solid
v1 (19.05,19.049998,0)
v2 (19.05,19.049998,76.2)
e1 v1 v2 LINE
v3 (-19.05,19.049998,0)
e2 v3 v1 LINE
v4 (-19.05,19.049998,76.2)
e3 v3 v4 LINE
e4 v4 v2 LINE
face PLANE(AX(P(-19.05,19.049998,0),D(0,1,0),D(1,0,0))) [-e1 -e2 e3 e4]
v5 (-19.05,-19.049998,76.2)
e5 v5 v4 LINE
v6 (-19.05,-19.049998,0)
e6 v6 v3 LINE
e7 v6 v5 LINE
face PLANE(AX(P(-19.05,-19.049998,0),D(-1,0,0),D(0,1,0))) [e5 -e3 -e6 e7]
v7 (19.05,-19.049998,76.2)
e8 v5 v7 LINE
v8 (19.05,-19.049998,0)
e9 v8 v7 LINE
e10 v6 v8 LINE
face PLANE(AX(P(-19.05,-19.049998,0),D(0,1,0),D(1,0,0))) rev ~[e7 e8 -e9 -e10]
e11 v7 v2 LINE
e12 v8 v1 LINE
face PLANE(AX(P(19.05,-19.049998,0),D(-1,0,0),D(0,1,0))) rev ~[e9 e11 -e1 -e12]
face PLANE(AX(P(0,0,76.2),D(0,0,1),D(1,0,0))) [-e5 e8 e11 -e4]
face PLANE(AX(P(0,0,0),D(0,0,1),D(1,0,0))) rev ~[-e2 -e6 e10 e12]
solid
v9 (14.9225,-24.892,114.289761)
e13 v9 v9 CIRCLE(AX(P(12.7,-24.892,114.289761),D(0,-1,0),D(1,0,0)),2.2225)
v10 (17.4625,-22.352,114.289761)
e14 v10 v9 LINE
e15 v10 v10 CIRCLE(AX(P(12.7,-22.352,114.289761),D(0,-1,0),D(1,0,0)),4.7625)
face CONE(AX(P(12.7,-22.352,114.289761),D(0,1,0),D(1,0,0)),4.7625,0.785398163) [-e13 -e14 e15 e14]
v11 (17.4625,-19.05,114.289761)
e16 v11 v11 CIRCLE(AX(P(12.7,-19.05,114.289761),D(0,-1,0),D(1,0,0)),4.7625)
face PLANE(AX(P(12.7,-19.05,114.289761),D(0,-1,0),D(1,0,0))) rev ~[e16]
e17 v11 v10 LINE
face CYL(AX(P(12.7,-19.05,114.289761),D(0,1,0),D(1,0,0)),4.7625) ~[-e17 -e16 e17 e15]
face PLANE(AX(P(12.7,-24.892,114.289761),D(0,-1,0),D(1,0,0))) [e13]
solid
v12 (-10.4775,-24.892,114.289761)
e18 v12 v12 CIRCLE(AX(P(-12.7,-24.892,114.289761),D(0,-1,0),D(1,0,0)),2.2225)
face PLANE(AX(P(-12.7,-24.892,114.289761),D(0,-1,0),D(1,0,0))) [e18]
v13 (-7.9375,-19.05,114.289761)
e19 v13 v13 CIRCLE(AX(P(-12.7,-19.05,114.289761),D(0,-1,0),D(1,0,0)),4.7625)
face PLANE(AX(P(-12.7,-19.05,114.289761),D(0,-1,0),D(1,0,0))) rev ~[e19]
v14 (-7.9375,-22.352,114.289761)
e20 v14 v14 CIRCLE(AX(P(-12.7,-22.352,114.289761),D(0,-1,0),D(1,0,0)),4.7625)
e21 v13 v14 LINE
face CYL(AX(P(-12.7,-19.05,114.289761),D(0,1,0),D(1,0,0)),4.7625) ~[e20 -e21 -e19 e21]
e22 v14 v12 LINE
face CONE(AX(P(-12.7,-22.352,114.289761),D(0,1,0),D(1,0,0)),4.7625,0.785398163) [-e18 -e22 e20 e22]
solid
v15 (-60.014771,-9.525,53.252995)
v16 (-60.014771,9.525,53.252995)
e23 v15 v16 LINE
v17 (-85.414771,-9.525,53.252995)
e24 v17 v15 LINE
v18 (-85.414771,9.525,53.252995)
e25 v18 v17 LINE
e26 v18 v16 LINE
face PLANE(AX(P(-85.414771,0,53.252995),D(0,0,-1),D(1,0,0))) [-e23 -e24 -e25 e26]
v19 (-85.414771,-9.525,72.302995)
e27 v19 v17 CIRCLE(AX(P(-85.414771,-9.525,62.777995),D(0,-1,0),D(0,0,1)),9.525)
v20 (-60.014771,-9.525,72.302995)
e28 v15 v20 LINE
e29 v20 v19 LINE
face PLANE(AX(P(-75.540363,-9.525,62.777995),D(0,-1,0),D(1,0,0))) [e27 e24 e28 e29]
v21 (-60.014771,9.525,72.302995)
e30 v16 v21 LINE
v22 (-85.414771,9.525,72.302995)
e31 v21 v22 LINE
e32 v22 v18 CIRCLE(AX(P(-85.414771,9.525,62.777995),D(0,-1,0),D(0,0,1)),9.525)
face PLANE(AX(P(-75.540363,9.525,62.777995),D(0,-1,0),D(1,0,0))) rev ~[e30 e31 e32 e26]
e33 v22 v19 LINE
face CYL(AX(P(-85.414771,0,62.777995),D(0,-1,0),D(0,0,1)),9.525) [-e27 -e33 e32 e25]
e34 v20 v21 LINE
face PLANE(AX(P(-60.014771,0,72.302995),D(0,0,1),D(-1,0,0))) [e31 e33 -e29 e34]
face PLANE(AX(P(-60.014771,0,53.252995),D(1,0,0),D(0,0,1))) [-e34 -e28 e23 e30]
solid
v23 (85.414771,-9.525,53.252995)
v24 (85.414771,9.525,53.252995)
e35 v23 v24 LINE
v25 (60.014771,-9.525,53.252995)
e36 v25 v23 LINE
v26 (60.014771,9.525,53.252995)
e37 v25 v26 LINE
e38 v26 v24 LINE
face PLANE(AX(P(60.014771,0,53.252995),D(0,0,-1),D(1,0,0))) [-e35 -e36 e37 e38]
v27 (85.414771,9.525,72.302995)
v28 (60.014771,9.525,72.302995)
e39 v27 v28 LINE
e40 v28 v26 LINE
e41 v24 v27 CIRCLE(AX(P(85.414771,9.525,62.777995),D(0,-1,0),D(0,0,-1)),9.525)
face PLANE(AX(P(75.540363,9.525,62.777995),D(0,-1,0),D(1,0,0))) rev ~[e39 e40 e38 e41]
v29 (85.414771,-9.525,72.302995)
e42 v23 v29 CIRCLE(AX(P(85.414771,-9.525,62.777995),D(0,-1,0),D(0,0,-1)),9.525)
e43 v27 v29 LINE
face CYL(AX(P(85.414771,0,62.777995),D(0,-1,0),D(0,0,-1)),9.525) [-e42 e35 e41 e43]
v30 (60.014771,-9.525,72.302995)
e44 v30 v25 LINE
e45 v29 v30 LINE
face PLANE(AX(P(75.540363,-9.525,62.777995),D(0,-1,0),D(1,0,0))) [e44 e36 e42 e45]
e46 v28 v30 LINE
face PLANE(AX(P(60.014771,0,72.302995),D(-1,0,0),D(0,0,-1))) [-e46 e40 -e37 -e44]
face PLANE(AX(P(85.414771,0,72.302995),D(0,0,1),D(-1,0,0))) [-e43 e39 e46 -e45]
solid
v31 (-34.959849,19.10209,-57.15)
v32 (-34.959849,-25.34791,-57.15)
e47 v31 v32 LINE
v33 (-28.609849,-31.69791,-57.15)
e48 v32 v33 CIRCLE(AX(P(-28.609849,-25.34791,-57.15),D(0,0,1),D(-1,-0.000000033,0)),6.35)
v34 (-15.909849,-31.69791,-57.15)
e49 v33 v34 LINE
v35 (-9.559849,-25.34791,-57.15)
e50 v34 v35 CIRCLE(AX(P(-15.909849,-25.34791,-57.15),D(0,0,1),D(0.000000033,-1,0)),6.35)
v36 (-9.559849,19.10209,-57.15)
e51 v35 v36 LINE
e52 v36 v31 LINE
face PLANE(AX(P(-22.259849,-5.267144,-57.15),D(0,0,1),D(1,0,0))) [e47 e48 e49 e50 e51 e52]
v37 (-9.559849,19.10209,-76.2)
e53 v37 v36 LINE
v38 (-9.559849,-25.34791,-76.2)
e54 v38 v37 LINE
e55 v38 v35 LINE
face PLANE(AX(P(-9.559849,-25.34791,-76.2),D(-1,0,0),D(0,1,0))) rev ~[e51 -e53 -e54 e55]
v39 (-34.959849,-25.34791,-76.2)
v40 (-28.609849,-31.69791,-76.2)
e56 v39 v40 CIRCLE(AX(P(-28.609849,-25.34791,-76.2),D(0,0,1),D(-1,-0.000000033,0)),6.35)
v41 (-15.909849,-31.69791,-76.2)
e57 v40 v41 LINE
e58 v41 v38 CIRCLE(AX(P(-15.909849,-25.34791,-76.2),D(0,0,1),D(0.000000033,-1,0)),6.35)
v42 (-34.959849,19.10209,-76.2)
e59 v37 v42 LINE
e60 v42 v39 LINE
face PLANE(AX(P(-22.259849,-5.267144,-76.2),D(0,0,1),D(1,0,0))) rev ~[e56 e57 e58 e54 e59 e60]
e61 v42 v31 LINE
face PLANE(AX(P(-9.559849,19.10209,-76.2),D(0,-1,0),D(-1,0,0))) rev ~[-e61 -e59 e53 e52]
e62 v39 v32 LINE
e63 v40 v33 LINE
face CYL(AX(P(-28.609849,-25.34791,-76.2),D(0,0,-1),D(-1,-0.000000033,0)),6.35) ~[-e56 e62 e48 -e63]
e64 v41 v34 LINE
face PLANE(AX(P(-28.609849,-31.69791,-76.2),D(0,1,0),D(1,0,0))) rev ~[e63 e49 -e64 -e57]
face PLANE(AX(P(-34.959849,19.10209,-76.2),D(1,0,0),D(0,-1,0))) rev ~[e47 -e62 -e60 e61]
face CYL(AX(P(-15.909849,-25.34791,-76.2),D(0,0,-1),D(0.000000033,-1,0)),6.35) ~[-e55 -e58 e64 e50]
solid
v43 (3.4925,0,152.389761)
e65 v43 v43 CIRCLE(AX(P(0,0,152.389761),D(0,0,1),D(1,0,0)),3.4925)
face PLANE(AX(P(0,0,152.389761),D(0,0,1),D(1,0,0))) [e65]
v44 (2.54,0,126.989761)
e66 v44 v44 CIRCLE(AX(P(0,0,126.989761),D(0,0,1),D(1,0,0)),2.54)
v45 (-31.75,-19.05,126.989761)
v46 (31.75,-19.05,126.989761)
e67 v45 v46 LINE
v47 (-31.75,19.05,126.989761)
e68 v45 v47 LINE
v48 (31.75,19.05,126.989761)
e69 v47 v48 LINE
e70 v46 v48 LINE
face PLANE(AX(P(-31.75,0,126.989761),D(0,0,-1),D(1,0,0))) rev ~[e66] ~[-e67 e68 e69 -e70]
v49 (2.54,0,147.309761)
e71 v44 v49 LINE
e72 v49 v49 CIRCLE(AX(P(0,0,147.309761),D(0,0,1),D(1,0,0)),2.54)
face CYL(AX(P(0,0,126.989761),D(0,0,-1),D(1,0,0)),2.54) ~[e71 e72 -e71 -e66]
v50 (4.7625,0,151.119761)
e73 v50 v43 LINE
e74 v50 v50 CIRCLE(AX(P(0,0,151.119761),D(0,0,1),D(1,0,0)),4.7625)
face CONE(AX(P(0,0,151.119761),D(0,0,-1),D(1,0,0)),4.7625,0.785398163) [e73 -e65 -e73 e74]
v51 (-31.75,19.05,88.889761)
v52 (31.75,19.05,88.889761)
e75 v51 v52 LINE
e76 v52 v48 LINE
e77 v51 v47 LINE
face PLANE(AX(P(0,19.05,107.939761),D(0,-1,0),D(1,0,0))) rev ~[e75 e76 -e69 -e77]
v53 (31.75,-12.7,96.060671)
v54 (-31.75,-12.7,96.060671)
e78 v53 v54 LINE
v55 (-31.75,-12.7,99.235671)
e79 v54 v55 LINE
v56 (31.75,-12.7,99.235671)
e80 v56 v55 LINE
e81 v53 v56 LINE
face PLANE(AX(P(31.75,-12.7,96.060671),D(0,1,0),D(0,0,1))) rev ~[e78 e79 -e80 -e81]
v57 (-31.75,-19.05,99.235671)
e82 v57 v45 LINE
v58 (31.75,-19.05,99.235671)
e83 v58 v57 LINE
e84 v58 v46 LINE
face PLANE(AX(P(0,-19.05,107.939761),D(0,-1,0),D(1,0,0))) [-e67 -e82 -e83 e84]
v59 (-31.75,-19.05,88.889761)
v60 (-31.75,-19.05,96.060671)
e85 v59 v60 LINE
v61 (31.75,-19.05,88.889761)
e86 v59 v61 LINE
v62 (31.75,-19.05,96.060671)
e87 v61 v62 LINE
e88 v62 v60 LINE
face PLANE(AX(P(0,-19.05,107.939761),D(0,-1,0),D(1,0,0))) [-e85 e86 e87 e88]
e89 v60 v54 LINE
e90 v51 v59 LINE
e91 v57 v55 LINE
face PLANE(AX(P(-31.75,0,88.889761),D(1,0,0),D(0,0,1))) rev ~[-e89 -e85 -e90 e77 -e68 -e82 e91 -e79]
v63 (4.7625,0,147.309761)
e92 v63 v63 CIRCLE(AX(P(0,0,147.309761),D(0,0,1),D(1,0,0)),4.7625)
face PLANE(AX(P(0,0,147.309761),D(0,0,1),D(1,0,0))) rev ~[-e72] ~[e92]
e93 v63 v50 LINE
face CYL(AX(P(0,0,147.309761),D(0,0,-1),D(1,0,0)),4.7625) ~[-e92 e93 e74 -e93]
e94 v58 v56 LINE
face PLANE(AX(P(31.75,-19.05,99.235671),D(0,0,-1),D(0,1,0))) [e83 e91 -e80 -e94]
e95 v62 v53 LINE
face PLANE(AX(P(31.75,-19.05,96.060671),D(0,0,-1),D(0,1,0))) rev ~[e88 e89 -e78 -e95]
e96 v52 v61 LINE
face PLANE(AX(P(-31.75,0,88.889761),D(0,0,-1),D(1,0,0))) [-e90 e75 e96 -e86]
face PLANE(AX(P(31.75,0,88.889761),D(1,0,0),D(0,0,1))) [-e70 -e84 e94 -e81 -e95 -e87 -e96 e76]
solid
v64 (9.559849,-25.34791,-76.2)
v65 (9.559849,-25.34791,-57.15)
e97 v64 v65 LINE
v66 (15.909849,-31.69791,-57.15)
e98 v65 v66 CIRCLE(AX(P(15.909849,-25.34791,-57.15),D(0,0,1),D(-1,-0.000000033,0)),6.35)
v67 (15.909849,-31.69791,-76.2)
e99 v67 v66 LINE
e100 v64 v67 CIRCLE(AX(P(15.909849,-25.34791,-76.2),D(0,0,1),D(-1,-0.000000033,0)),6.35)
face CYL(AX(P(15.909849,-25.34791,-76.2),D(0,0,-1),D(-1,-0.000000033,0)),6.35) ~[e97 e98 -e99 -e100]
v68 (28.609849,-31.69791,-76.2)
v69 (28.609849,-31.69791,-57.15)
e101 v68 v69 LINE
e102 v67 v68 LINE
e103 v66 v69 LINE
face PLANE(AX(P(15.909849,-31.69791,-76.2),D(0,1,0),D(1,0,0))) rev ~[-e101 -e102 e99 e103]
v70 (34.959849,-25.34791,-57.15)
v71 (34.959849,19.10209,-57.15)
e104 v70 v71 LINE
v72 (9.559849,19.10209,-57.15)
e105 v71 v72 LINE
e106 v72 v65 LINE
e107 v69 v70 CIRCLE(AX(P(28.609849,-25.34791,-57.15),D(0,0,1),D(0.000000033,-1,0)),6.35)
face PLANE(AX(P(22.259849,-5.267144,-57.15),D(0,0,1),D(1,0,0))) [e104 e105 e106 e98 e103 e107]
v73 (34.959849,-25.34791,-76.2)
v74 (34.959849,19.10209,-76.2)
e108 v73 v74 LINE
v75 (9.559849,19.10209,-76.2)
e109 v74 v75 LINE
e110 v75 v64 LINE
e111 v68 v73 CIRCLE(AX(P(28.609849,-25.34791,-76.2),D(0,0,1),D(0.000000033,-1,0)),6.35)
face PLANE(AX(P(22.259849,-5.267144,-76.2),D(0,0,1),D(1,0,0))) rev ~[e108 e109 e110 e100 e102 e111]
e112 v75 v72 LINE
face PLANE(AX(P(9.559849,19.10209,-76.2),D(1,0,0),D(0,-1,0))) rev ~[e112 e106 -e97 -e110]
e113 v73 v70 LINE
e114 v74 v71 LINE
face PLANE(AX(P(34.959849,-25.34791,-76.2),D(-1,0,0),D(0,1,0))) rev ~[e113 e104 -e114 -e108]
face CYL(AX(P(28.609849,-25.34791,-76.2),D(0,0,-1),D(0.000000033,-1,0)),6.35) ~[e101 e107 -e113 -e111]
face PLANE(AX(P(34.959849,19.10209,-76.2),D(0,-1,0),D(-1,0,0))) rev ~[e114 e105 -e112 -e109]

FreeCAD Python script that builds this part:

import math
import FreeCAD as App
import Part
import Sketcher
from FreeCAD import Vector
Q = App.Units.Quantity


def edges_at(feature, points):
    """Names of the edges that pass closest to the given points."""
    edges = feature.Shape.Edges
    near = lambda p: min(range(len(edges)), key=lambda i: edges[i].distToShape(Part.Vertex(*p))[0])
    return sorted({f"Edge{near(p) + 1}" for p in points})


def add_polygon(sketch, points):
    """Adds a closed chain of lines whose ends are joined by coincident constraints."""
    first, n = sketch.GeometryCount, len(points)
    for a, b in zip(points, points[1:] + points[:1]):
        sketch.addGeometry(Part.LineSegment(App.Vector(*a, 0), App.Vector(*b, 0)), False)
    for i in range(n):
        sketch.addConstraint(Sketcher.Constraint("Coincident", first + i, 2, first + (i + 1) % n, 1))

doc = App.newDocument("Part")
body = doc.addObject("PartDesign::Body", "Body")

# Sketch on XY plane
sketch1 = body.newObject("Sketcher::SketchObject", "Sketch")
sketch1.AttachmentSupport = (doc.getObject("XY_Plane"), [""])
sketch1.MapMode = "FlatFace"
add_polygon(sketch1, [(-19, 19), (-19, -19), (19, -19), (19, 19)])  # lines 0-3
sketch1.addConstraint(Sketcher.Constraint("Vertical", 0))
sketch1.addConstraint(Sketcher.Constraint("Horizontal", 1))
sketch1.addConstraint(Sketcher.Constraint("Vertical", 2))
sketch1.addConstraint(Sketcher.Constraint("Horizontal", 3))
sketch1.addConstraint(Sketcher.Constraint("Symmetric", 0, 2, 2, 2, -1, 1))
sketch1.addConstraint(Sketcher.Constraint("DistanceX", 1, 1, 1, 2, Q("1.5 in")))
sketch1.addConstraint(Sketcher.Constraint("DistanceY", 0, 2, 0, 1, Q("1.4999998 in")))
pad1 = body.newObject("PartDesign::Pad", "Pad")
pad1.Profile = sketch1
pad1.Length = Q("3 in")
body2 = doc.addObject("PartDesign::Body", "Body001")

# Sketch on XZ plane
sketch2 = body2.newObject("Sketcher::SketchObject", "Sketch001")
sketch2.AttachmentSupport = (doc.getObject("XZ_Plane001"), [""])
sketch2.MapMode = "FlatFace"
add_polygon(sketch2, [(-32, 127), (-32, 89), (32, 89), (32, 127)])  # lines 0-3
sketch2.addConstraint(Sketcher.Constraint("Vertical", 0))
sketch2.addConstraint(Sketcher.Constraint("Horizontal", 1))
sketch2.addConstraint(Sketcher.Constraint("Vertical", 2))
sketch2.addConstraint(Sketcher.Constraint("Horizontal", 3))
sketch2.addConstraint(Sketcher.Constraint("DistanceX", 1, 1, 1, 2, Q("2.5 in")))
sketch2.addConstraint(Sketcher.Constraint("DistanceY", 0, 2, 0, 1, Q("1.5 in")))
sketch2.addConstraint(Sketcher.Constraint("DistanceX", 0, 2, -1, 1, Q("1.25 in")))
sketch2.addConstraint(Sketcher.Constraint("DistanceY", -1, 1, 0, 2, Q("88.889761 mm")))
pad2 = body2.newObject("PartDesign::Pad", "Pad001")
pad2.Profile = sketch2
pad2.Type = "TwoLengths"
pad2.Length = Q("0.75 in")
pad2.Length2 = Q("0.75 in")

# Sketch on YZ plane
sketch3 = body2.newObject("Sketcher::SketchObject", "Sketch002")
sketch3.AttachmentSupport = (doc.getObject("YZ_Plane001"), [""])
sketch3.MapMode = "FlatFace"
sketch3.AttachmentOffset = App.Placement(Vector(0, 0, 1.25 * 25.4), App.Rotation())
add_polygon(sketch3, [(-19.1, 99.2), (-19.1, 96.1), (-12.7, 96.1), (-12.7, 99.2)])  # lines 0-3
sketch3.addConstraint(Sketcher.Constraint("Vertical", 0))
sketch3.addConstraint(Sketcher.Constraint("Horizontal", 1))
sketch3.addConstraint(Sketcher.Constraint("Vertical", 2))
sketch3.addConstraint(Sketcher.Constraint("Horizontal", 3))
sketch3.addConstraint(Sketcher.Constraint("DistanceX", 1, 1, 1, 2, Q("0.25 in")))
sketch3.addConstraint(Sketcher.Constraint("DistanceX", 1, 2, -1, 1, Q("0.5 in")))
sketch3.addConstraint(Sketcher.Constraint("DistanceY", 0, 2, 0, 1, Q("0.125 in")))
sketch3.addConstraint(Sketcher.Constraint("DistanceY", -1, 1, 0, 2, Q("96.060671 mm")))
pocket1 = body2.newObject("PartDesign::Pocket", "Pocket")
pocket1.Profile = sketch3
pocket1.Type = "ThroughAll"

# Sketch on XY plane
sketch4 = body2.newObject("Sketcher::SketchObject", "Sketch003")
sketch4.AttachmentSupport = (doc.getObject("XY_Plane001"), [""])
sketch4.MapMode = "FlatFace"
sketch4.AttachmentOffset = App.Placement(Vector(0, 0, 126.989761), App.Rotation())
sketch4.addGeometry(Part.Circle(Vector(0, 0, 0), Vector(0, 0, 1), 2.5), False)
sketch4.addConstraint(Sketcher.Constraint("Coincident", 0, 3, -1, 1))
sketch4.addConstraint(Sketcher.Constraint("Diameter", 0, Q("0.2 in")))
pad3 = body2.newObject("PartDesign::Pad", "Pad002")
pad3.Profile = sketch4
pad3.Length = Q("0.8 in")

# Sketch on XY plane
sketch5 = body2.newObject("Sketcher::SketchObject", "Sketch004")
sketch5.AttachmentSupport = (doc.getObject("XY_Plane001"), [""])
sketch5.MapMode = "FlatFace"
sketch5.AttachmentOffset = App.Placement(Vector(0, 0, 147.309761), App.Rotation())
sketch5.addGeometry(Part.Circle(Vector(0, 0, 0), Vector(0, 0, 1), 4.8), False)
sketch5.addConstraint(Sketcher.Constraint("Coincident", 0, 3, -1, 1))
sketch5.addConstraint(Sketcher.Constraint("Diameter", 0, Q("0.375 in")))
pad4 = body2.newObject("PartDesign::Pad", "Pad003")
pad4.Profile = sketch5
pad4.Length = Q("0.2 in")
doc.recompute()

chamfer = body2.newObject("PartDesign::Chamfer", "Chamfer")
chamfer.Base = (pad4, edges_at(pad4, [(-4.763, 0, 152.39)]))
chamfer.Size = Q("0.05 in")
body3 = doc.addObject("PartDesign::Body", "Body002")
body3.AllowCompound = True

# Sketch on XZ plane
sketch6 = body3.newObject("Sketcher::SketchObject", "Sketch005")
sketch6.AttachmentSupport = (doc.getObject("XZ_Plane002"), [""])
sketch6.MapMode = "FlatFace"
sketch6.AttachmentOffset = App.Placement(Vector(0, 0, 0.75 * 25.4), App.Rotation())
sketch6.addGeometry(Part.Circle(Vector(-12.7, 114.3, 0), Vector(0, 0, 1), 4.8), False)
sketch6.addGeometry(Part.Circle(Vector(12.7, 114.3, 0), Vector(0, 0, 1), 4.8), False)
sketch6.addConstraint(Sketcher.Constraint("Equal", 0, 1))
sketch6.addConstraint(Sketcher.Constraint("Symmetric", 0, 3, 1, 3, -2))
sketch6.addConstraint(Sketcher.Constraint("Diameter", 0, Q("0.375 in")))
sketch6.addConstraint(Sketcher.Constraint("DistanceX", 0, 3, 1, 3, Q("1 in")))
sketch6.addConstraint(Sketcher.Constraint("DistanceY", -1, 1, 0, 3, Q("114.289761 mm")))
pad5 = body3.newObject("PartDesign::Pad", "Pad004")
pad5.Profile = sketch6
pad5.Length = Q("0.23 in")
doc.recompute()

chamfer2 = body3.newObject("PartDesign::Chamfer", "Chamfer001")
chamfer2.Base = (pad5, edges_at(pad5, [(-17.462, -24.892, 114.29), (7.938, -24.892, 114.29)]))
chamfer2.Size = Q("0.1 in")
body4 = doc.addObject("PartDesign::Body", "Body003")
body4.AllowCompound = True

# Sketch on XY plane
sketch7 = body4.newObject("Sketcher::SketchObject", "Sketch006")
sketch7.AttachmentSupport = (doc.getObject("XY_Plane003"), [""])
sketch7.MapMode = "FlatFace"
sketch7.AttachmentOffset = App.Placement(Vector(0, 0, -3 * 25.4), App.Rotation())
sketch7.addGeometry(Part.ArcOfCircle(Part.Circle(Vector(-29, -25, 0), Vector(0, 0, 1), 6), math.radians(-180), math.radians(-90)), False)
sketch7.addGeometry(Part.LineSegment(Vector(-29, -32, 0), Vector(-16, -32, 0)), False)
sketch7.addGeometry(Part.ArcOfCircle(Part.Circle(Vector(-16, -25, 0), Vector(0, 0, 1), 6), math.radians(-90), math.radians(0)), False)
sketch7.addGeometry(Part.LineSegment(Vector(-10, -25, 0), Vector(-10, 19, 0)), False)
sketch7.addGeometry(Part.LineSegment(Vector(-10, 19, 0), Vector(-35, 19, 0)), False)
sketch7.addGeometry(Part.LineSegment(Vector(-35, 19, 0), Vector(-35, -25, 0)), False)
sketch7.addGeometry(Part.LineSegment(Vector(35, -25, 0), Vector(35, 19, 0)), False)
sketch7.addGeometry(Part.LineSegment(Vector(35, 19, 0), Vector(10, 19, 0)), False)
sketch7.addGeometry(Part.LineSegment(Vector(10, 19, 0), Vector(10, -25, 0)), False)
sketch7.addGeometry(Part.ArcOfCircle(Part.Circle(Vector(16, -25, 0), Vector(0, 0, 1), 6), math.radians(-180), math.radians(-90)), False)
sketch7.addGeometry(Part.LineSegment(Vector(16, -32, 0), Vector(29, -32, 0)), False)
sketch7.addGeometry(Part.ArcOfCircle(Part.Circle(Vector(29, -25, 0), Vector(0, 0, 1), 6), math.radians(-90), math.radians(0)), False)
sketch7.addConstraint(Sketcher.Constraint("Tangent", 0, 2, 1, 1))
sketch7.addConstraint(Sketcher.Constraint("Tangent", 1, 2, 2, 1))
sketch7.addConstraint(Sketcher.Constraint("Tangent", 2, 2, 3, 1))
sketch7.addConstraint(Sketcher.Constraint("Coincident", 3, 2, 4, 1))
sketch7.addConstraint(Sketcher.Constraint("Coincident", 4, 2, 5, 1))
sketch7.addConstraint(Sketcher.Constraint("Tangent", 5, 2, 0, 1))
sketch7.addConstraint(Sketcher.Constraint("Coincident", 6, 2, 7, 1))
sketch7.addConstraint(Sketcher.Constraint("Coincident", 7, 2, 8, 1))
sketch7.addConstraint(Sketcher.Constraint("Tangent", 8, 2, 9, 1))
sketch7.addConstraint(Sketcher.Constraint("Tangent", 9, 2, 10, 1))
sketch7.addConstraint(Sketcher.Constraint("Tangent", 10, 2, 11, 1))
sketch7.addConstraint(Sketcher.Constraint("Tangent", 11, 2, 6, 1))
sketch7.addConstraint(Sketcher.Constraint("Horizontal", 1))
sketch7.addConstraint(Sketcher.Constraint("Vertical", 3))
sketch7.addConstraint(Sketcher.Constraint("Horizontal", 4))
sketch7.addConstraint(Sketcher.Constraint("Vertical", 5))
sketch7.addConstraint(Sketcher.Constraint("Vertical", 6))
sketch7.addConstraint(Sketcher.Constraint("Horizontal", 7))
sketch7.addConstraint(Sketcher.Constraint("Vertical", 8))
sketch7.addConstraint(Sketcher.Constraint("Horizontal", 10))
sketch7.addConstraint(Sketcher.Constraint("Equal", 0, 2))
sketch7.addConstraint(Sketcher.Constraint("Equal", 2, 9))
sketch7.addConstraint(Sketcher.Constraint("Equal", 9, 11))
sketch7.addConstraint(Sketcher.Constraint("Symmetric", 2, 3, 9, 3, -2))
sketch7.addConstraint(Sketcher.Constraint("Symmetric", 4, 2, 6, 2, -2))
sketch7.addConstraint(Sketcher.Constraint("DistanceX", 4, 2, 4, 1, Q("1 in")))
sketch7.addConstraint(Sketcher.Constraint("Radius", 0, Q("0.25 in")))
sketch7.addConstraint(Sketcher.Constraint("DistanceY", 1, 2, 3, 2, Q("2 in")))
sketch7.addConstraint(Sketcher.Constraint("DistanceX", 2, 3, 9, 3, Q("31.819698 mm")))
sketch7.addConstraint(Sketcher.Constraint("DistanceY", 0, 3, -1, 1, Q("25.34791 mm")))
pad6 = body4.newObject("PartDesign::Pad", "Pad005")
pad6.Profile = sketch7
pad6.Length = Q("0.75 in")
body5 = doc.addObject("PartDesign::Body", "Body004")
body5.AllowCompound = True

# Sketch on XZ plane
sketch8 = body5.newObject("Sketcher::SketchObject", "Sketch007")
sketch8.AttachmentSupport = (doc.getObject("XZ_Plane004"), [""])
sketch8.MapMode = "FlatFace"
sketch8.addGeometry(Part.LineSegment(Vector(-60, 72, 0), Vector(-85, 72, 0)), False)
sketch8.addGeometry(Part.ArcOfCircle(Part.Circle(Vector(-85, 63, 0), Vector(0, 0, 1), 10), math.radians(90), math.radians(270)), False)
sketch8.addGeometry(Part.LineSegment(Vector(-85, 53, 0), Vector(-60, 53, 0)), False)
sketch8.addGeometry(Part.LineSegment(Vector(-60, 53, 0), Vector(-60, 72, 0)), False)
sketch8.addGeometry(Part.ArcOfCircle(Part.Circle(Vector(85, 63, 0), Vector(0, 0, 1), 10), math.radians(-90), math.radians(90)), False)
sketch8.addGeometry(Part.LineSegment(Vector(85, 72, 0), Vector(60, 72, 0)), False)
sketch8.addGeometry(Part.LineSegment(Vector(60, 72, 0), Vector(60, 53, 0)), False)
sketch8.addGeometry(Part.LineSegment(Vector(60, 53, 0), Vector(85, 53, 0)), False)
sketch8.addConstraint(Sketcher.Constraint("Tangent", 0, 2, 1, 1))
sketch8.addConstraint(Sketcher.Constraint("Tangent", 1, 2, 2, 1))
sketch8.addConstraint(Sketcher.Constraint("Coincident", 2, 2, 3, 1))
sketch8.addConstraint(Sketcher.Constraint("Coincident", 3, 2, 0, 1))
sketch8.addConstraint(Sketcher.Constraint("Tangent", 4, 2, 5, 1))
sketch8.addConstraint(Sketcher.Constraint("Coincident", 5, 2, 6, 1))
sketch8.addConstraint(Sketcher.Constraint("Coincident", 6, 2, 7, 1))
sketch8.addConstraint(Sketcher.Constraint("Tangent", 7, 2, 4, 1))
sketch8.addConstraint(Sketcher.Constraint("Horizontal", 0))
sketch8.addConstraint(Sketcher.Constraint("Horizontal", 2))
sketch8.addConstraint(Sketcher.Constraint("Vertical", 3))
sketch8.addConstraint(Sketcher.Constraint("Horizontal", 5))
sketch8.addConstraint(Sketcher.Constraint("Vertical", 6))
sketch8.addConstraint(Sketcher.Constraint("Horizontal", 7))
sketch8.addConstraint(Sketcher.Constraint("Equal", 1, 4))
sketch8.addConstraint(Sketcher.Constraint("Symmetric", 1, 3, 4, 3, -2))
sketch8.addConstraint(Sketcher.Constraint("Equal", 2, 5))
sketch8.addConstraint(Sketcher.Constraint("DistanceX", 0, 2, 0, 1, Q("1 in")))
sketch8.addConstraint(Sketcher.Constraint("Radius", 1, Q("0.375 in")))
sketch8.addConstraint(Sketcher.Constraint("DistanceX", 1, 3, -1, 1, Q("85.414771 mm")))
sketch8.addConstraint(Sketcher.Constraint("DistanceY", -1, 1, 1, 3, Q("62.777995 mm")))
pad7 = body5.newObject("PartDesign::Pad", "Pad006")
pad7.Profile = sketch8
pad7.Type = "TwoLengths"
pad7.Length = Q("0.375 in")
pad7.Length2 = Q("0.375 in")

doc.recompute()
